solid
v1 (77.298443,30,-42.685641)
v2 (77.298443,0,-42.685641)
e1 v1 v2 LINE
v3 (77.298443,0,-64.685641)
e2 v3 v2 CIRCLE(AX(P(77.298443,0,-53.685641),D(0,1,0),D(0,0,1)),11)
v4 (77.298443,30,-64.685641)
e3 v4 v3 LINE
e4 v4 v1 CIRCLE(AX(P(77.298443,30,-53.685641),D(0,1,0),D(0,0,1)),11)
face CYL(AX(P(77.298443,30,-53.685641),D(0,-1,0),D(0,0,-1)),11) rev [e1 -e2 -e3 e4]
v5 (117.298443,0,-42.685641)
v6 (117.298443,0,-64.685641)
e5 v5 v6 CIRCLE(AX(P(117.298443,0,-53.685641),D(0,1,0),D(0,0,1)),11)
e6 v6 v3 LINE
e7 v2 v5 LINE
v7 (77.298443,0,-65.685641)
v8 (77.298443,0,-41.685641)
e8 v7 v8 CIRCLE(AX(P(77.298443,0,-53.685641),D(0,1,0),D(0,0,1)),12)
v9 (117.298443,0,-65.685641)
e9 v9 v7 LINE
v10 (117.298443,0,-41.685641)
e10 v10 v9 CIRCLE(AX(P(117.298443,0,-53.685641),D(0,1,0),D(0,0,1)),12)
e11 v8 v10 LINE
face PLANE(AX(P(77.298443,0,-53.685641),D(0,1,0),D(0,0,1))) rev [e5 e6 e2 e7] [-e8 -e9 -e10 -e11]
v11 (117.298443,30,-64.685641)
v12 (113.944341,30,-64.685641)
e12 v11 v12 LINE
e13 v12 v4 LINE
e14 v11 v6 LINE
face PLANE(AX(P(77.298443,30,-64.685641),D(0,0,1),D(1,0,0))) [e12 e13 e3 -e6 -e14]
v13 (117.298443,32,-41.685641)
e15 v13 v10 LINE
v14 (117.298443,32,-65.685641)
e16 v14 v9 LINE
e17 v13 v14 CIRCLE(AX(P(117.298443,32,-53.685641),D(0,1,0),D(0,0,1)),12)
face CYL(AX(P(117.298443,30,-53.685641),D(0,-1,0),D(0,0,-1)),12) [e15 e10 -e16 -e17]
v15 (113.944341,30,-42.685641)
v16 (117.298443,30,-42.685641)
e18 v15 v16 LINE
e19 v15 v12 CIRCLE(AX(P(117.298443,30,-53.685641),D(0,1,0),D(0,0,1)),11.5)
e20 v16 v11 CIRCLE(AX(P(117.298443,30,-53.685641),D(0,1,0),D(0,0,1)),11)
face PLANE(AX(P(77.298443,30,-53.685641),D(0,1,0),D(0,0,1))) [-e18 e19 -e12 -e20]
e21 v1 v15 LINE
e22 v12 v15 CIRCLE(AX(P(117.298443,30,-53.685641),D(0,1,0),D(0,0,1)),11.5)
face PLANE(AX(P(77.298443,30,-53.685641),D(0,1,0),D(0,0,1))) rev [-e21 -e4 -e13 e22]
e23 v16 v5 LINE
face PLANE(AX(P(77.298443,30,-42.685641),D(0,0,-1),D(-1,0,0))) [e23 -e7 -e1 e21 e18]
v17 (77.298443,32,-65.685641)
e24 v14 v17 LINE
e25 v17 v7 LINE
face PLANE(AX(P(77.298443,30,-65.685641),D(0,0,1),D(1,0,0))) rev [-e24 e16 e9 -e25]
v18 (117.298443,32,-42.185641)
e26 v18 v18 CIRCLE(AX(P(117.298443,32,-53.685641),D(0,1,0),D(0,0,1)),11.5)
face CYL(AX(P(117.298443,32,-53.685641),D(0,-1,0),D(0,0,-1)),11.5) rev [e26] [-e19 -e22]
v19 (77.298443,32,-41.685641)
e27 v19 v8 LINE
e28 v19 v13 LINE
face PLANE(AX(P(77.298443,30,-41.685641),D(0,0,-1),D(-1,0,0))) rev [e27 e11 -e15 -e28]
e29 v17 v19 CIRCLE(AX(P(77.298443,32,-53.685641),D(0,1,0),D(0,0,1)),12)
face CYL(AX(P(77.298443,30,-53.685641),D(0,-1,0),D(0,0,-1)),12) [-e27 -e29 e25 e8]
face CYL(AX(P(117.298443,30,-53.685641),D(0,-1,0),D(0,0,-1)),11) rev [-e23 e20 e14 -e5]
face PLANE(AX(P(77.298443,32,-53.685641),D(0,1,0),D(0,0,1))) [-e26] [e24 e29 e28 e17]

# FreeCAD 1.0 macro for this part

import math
import FreeCAD as App
import Part
import Sketcher

V = App.Vector

doc = App.newDocument("Part")
body = doc.addObject("PartDesign::Body", "Body")

sketch1 = body.newObject("Sketcher::SketchObject", "Sketch")
sketch1.AttachmentSupport = (doc.getObject("XZ_Plane"), [""])
sketch1.MapMode = "FlatFace"
sketch1.addGeometry([
    Part.LineSegment(V(77, -42, 0), V(117, -42, 0)),
    Part.ArcOfCircle(Part.Circle(V(117, -54, 0), V(0, 0, 1), 12), math.radians(-90), math.radians(90)),
    Part.LineSegment(V(117, -66, 0), V(77, -66, 0)),
    Part.ArcOfCircle(Part.Circle(V(77, -54, 0), V(0, 0, 1), 12), math.radians(90), math.radians(270)),
    Part.ArcOfCircle(Part.Circle(V(77, -54, 0), V(0, 0, 1), 11), math.radians(90), math.radians(270)),
    Part.LineSegment(V(77, -65, 0), V(117, -65, 0)),
    Part.ArcOfCircle(Part.Circle(V(117, -54, 0), V(0, 0, 1), 11), math.radians(-90), math.radians(90)),
    Part.LineSegment(V(117, -43, 0), V(77, -43, 0)),
], False)
sketch1.addConstraint([
    Sketcher.Constraint("Tangent", 0, 2, 1, 2),
    Sketcher.Constraint("Tangent", 1, 1, 2, 1),
    Sketcher.Constraint("Tangent", 2, 2, 3, 2),
    Sketcher.Constraint("Tangent", 3, 1, 0, 1),
    Sketcher.Constraint("Tangent", 4, 2, 5, 1),
    Sketcher.Constraint("Tangent", 5, 2, 6, 1),
    Sketcher.Constraint("Tangent", 6, 2, 7, 1),
    Sketcher.Constraint("Tangent", 7, 2, 4, 1),
    Sketcher.Constraint("Horizontal", 0),
    Sketcher.Constraint("Horizontal", 2),
    Sketcher.Constraint("Horizontal", 5),
    Sketcher.Constraint("Horizontal", 7),
    Sketcher.Constraint("Coincident", 4, 3, 3, 3),
    Sketcher.Constraint("Vertical", 6, 3, 0, 2),
    Sketcher.Constraint("Radius", 1, 12.0),
    Sketcher.Constraint("Radius", 4, 11.0),
    Sketcher.Constraint("DistanceX", 0, 1, 0, 2, 40.0),
    Sketcher.Constraint("DistanceY", 1, 3, -1, 1, 53.685641),
    Sketcher.Constraint("DistanceX", -1, 1, 1, 3, 117.298443),
])
pad1 = body.newObject("PartDesign::Pad", "Pad")
pad1.Profile = sketch1
pad1.Length = 30
pad1.Reversed = True

sketch2 = body.newObject("Sketcher::SketchObject", "Sketch001")
sketch2.AttachmentSupport = (doc.getObject("XZ_Plane"), [""])
sketch2.MapMode = "FlatFace"
sketch2.AttachmentOffset = App.Placement(V(0, 0, -30), App.Rotation())
sketch2.addGeometry([
    Part.LineSegment(V(117, -66, 0), V(77, -66, 0)),
    Part.ArcOfCircle(Part.Circle(V(77, -54, 0), V(0, 0, 1), 12), math.radians(90), math.radians(270)),
    Part.LineSegment(V(77, -42, 0), V(117, -42, 0)),
    Part.ArcOfCircle(Part.Circle(V(117, -54, 0), V(0, 0, 1), 12), math.radians(-90), math.radians(90)),
    Part.Circle(V(117, -54, 0), V(0, 0, 1), 12),
], False)
sketch2.addConstraint([
    Sketcher.Constraint("Tangent", 0, 2, 1, 2),
    Sketcher.Constraint("Tangent", 1, 1, 2, 1),
    Sketcher.Constraint("Tangent", 2, 2, 3, 2),
    Sketcher.Constraint("Tangent", 3, 1, 0, 1),
    Sketcher.Constraint("Horizontal", 0),
    Sketcher.Constraint("Horizontal", 2),
    Sketcher.Constraint("Coincident", 4, 3, 3, 3),
    Sketcher.Constraint("Diameter", 4, 23.0),
    Sketcher.Constraint("Radius", 1, 12.0),
    Sketcher.Constraint("DistanceX", 0, 2, 0, 1, 40.0),
    Sketcher.Constraint("DistanceY", 1, 3, -1, 1, 53.685641),
    Sketcher.Constraint("DistanceX", -1, 1, 1, 3, 77.298443),
])
pad2 = body.newObject("PartDesign::Pad", "Pad001")
pad2.Profile = sketch2
pad2.Length = 2
pad2.Reversed = True

doc.recompute()
